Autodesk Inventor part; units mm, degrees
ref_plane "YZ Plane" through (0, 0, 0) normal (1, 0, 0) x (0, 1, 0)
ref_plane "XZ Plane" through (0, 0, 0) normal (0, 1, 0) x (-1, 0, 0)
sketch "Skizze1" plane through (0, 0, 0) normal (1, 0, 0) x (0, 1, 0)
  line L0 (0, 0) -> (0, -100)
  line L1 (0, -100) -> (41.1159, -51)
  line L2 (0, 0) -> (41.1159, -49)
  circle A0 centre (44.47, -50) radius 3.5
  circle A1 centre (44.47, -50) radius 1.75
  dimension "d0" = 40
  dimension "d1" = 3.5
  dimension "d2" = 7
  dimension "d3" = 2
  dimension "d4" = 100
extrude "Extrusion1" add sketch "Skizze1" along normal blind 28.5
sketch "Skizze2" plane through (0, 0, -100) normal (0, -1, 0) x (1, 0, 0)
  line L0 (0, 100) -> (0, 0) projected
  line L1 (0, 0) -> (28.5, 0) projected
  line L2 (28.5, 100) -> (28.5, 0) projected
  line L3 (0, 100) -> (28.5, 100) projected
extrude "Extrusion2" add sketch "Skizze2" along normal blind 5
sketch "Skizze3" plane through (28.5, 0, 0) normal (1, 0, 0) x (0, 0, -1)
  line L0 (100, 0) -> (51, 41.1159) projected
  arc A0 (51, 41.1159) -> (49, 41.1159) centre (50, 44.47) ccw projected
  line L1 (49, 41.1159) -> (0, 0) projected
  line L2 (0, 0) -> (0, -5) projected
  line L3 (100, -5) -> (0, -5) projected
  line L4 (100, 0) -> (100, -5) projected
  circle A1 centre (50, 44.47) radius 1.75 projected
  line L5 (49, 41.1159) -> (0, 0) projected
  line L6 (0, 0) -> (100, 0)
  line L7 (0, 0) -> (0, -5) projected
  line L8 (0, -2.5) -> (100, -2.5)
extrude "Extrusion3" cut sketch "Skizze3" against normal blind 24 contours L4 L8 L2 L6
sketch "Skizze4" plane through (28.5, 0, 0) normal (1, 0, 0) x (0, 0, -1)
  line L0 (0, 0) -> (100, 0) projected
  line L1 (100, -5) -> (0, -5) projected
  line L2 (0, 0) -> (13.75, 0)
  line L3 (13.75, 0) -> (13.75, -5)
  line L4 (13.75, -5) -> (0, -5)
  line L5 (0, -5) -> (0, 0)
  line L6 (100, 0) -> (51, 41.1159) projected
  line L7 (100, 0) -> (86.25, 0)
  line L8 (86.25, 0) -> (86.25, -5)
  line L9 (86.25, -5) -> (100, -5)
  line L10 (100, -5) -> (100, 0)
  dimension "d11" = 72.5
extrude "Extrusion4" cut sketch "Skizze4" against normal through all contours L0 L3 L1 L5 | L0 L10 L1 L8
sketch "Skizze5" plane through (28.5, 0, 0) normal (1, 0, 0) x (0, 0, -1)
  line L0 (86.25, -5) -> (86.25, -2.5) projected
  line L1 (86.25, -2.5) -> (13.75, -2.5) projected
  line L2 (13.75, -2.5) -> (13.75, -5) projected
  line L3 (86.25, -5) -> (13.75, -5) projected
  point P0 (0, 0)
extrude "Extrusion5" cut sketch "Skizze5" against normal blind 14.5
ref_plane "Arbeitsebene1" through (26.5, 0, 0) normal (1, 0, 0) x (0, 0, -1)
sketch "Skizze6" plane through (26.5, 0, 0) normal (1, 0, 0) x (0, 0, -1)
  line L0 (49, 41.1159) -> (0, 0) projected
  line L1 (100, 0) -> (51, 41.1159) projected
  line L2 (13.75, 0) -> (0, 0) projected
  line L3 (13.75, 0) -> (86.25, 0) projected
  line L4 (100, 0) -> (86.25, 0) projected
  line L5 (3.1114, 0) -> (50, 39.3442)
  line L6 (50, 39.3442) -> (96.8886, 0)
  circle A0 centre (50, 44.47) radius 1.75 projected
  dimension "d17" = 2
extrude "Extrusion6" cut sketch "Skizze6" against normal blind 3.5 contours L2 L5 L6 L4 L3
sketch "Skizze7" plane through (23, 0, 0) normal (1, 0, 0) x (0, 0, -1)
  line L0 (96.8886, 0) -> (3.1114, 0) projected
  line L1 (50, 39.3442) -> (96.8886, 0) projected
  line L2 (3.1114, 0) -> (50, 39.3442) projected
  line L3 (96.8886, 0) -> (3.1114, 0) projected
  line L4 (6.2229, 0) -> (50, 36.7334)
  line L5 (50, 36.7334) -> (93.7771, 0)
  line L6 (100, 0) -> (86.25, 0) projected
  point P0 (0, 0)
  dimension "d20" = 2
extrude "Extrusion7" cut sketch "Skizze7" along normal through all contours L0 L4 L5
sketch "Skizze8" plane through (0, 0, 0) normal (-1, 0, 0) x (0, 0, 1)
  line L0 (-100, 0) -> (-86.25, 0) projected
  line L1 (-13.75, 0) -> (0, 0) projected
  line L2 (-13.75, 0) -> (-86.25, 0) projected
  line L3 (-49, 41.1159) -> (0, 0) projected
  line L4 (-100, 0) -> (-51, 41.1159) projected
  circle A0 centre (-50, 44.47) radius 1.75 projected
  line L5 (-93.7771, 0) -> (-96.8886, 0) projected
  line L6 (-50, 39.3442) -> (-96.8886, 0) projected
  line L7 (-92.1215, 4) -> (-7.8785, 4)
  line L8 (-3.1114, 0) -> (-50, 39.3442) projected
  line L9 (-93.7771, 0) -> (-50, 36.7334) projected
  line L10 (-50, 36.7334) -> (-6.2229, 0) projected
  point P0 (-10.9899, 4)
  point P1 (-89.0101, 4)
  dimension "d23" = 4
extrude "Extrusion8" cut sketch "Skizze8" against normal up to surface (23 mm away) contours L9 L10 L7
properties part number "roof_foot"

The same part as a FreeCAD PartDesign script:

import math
import FreeCAD as App
import Part
import Sketcher
Q = App.Units.Quantity

doc = App.newDocument("Part")
body = doc.addObject("PartDesign::Body", "Body")

sketch1 = doc.addObject("Sketcher::SketchObject", "Sketch")
body.addObject(sketch1)
sketch1.AttachmentSupport = (doc.YZ_Plane, [""])
sketch1.MapMode = "FlatFace"
sketch1.addGeometry(Part.LineSegment(App.Vector(41.1, -49, 0), App.Vector(0, 0, 0)), False)
sketch1.addGeometry(Part.LineSegment(App.Vector(0, 0, 0), App.Vector(0, -100, 0)), False)
sketch1.addGeometry(Part.LineSegment(App.Vector(0, -100, 0), App.Vector(41.1, -51, 0)), False)
sketch1.addGeometry(Part.ArcOfCircle(Part.Circle(App.Vector(44.5, -50, 0), App.Vector(0, 0, 1), 3.5), math.radians(-163), math.radians(163)), False)
sketch1.addGeometry(Part.Circle(App.Vector(44.5, -50, 0), App.Vector(0, 0, 1), 1.8), False)
sketch1.addConstraint(Sketcher.Constraint("Coincident", 0, 2, 1, 1))
sketch1.addConstraint(Sketcher.Constraint("Coincident", 1, 2, 2, 1))
sketch1.addConstraint(Sketcher.Constraint("Coincident", 2, 2, 3, 1))
sketch1.addConstraint(Sketcher.Constraint("Coincident", 3, 2, 0, 1))
sketch1.addConstraint(Sketcher.Constraint("Vertical", 1))
sketch1.addConstraint(Sketcher.Constraint("Coincident", 0, 2, -1, 1))
sketch1.addConstraint(Sketcher.Constraint("Coincident", 4, 3, 3, 3))
sketch1.addConstraint(Sketcher.Constraint("Vertical", 2, 2, 3, 2))
sketch1.addConstraint(Sketcher.Constraint("Equal", 0, 2))
sketch1.addConstraint(Sketcher.Constraint("Diameter", 4, 3.5))
sketch1.addConstraint(Sketcher.Constraint("Radius", 3, 3.5))
sketch1.addConstraint(Sketcher.Constraint("DistanceY", 1, 2, 1, 1, 100.0))
sketch1.addConstraint(Sketcher.Constraint("DistanceY", 2, 2, 3, 2, 2.0))
sketch1.addConstraint(Sketcher.Constraint("Angle", 0, Q("130 deg")))
pad1 = doc.addObject("PartDesign::Pad", "Pad")
body.addObject(pad1)
pad1.Profile = sketch1
pad1.Length = 28.5

sketch2 = doc.addObject("Sketcher::SketchObject", "Sketch001")
body.addObject(sketch2)
sketch2.AttachmentSupport = (doc.XZ_Plane, [""])
sketch2.MapMode = "FlatFace"
sketch2.addGeometry(Part.LineSegment(App.Vector(28, 0, 0), App.Vector(0, 0, 0)), False)
sketch2.addGeometry(Part.LineSegment(App.Vector(0, 0, 0), App.Vector(0, -100, 0)), False)
sketch2.addGeometry(Part.LineSegment(App.Vector(0, -100, 0), App.Vector(28, -100, 0)), False)
sketch2.addGeometry(Part.LineSegment(App.Vector(28, -100, 0), App.Vector(28, 0, 0)), False)
sketch2.addConstraint(Sketcher.Constraint("Coincident", 0, 2, 1, 1))
sketch2.addConstraint(Sketcher.Constraint("Coincident", 1, 2, 2, 1))
sketch2.addConstraint(Sketcher.Constraint("Coincident", 2, 2, 3, 1))
sketch2.addConstraint(Sketcher.Constraint("Coincident", 3, 2, 0, 1))
sketch2.addConstraint(Sketcher.Constraint("Horizontal", 0))
sketch2.addConstraint(Sketcher.Constraint("Vertical", 1))
sketch2.addConstraint(Sketcher.Constraint("Horizontal", 2))
sketch2.addConstraint(Sketcher.Constraint("Vertical", 3))
sketch2.addConstraint(Sketcher.Constraint("Coincident", 0, 2, -1, 1))
sketch2.addConstraint(Sketcher.Constraint("DistanceY", 1, 2, 1, 1, 100.0))
sketch2.addConstraint(Sketcher.Constraint("DistanceX", 0, 2, 0, 1, 28.5))
pad2 = doc.addObject("PartDesign::Pad", "Pad001")
body.addObject(pad2)
pad2.Profile = sketch2
pad2.Length = 5

sketch3 = doc.addObject("Sketcher::SketchObject", "Sketch002")
body.addObject(sketch3)
sketch3.AttachmentSupport = (doc.YZ_Plane, [""])
sketch3.MapMode = "FlatFace"
sketch3.AttachmentOffset = App.Placement(App.Vector(0, 0, 28.5), App.Rotation())
sketch3.addGeometry(Part.LineSegment(App.Vector(-2.5, -100, 0), App.Vector(0, -100, 0)), False)
sketch3.addGeometry(Part.LineSegment(App.Vector(0, -100, 0), App.Vector(0, 0, 0)), False)
sketch3.addGeometry(Part.LineSegment(App.Vector(0, 0, 0), App.Vector(-2.5, 0, 0)), False)
sketch3.addGeometry(Part.LineSegment(App.Vector(-2.5, 0, 0), App.Vector(-2.5, -100, 0)), False)
sketch3.addConstraint(Sketcher.Constraint("Coincident", 0, 2, 1, 1))
sketch3.addConstraint(Sketcher.Constraint("Coincident", 1, 2, 2, 1))
sketch3.addConstraint(Sketcher.Constraint("Coincident", 2, 2, 3, 1))
sketch3.addConstraint(Sketcher.Constraint("Coincident", 3, 2, 0, 1))
sketch3.addConstraint(Sketcher.Constraint("Horizontal", 0))
sketch3.addConstraint(Sketcher.Constraint("Vertical", 1))
sketch3.addConstraint(Sketcher.Constraint("Horizontal", 2))
sketch3.addConstraint(Sketcher.Constraint("Vertical", 3))
sketch3.addConstraint(Sketcher.Constraint("Coincident", 1, 2, -1, 1))
sketch3.addConstraint(Sketcher.Constraint("DistanceY", 1, 1, 1, 2, 100.0))
sketch3.addConstraint(Sketcher.Constraint("DistanceX", 0, 1, 0, 2, 2.5))
pocket1 = doc.addObject("PartDesign::Pocket", "Pocket")
body.addObject(pocket1)
pocket1.Profile = sketch3
pocket1.Length = 24

sketch4 = doc.addObject("Sketcher::SketchObject", "Sketch003")
body.addObject(sketch4)
sketch4.AttachmentSupport = (doc.YZ_Plane, [""])
sketch4.MapMode = "FlatFace"
sketch4.AttachmentOffset = App.Placement(App.Vector(0, 0, 28.5), App.Rotation())
sketch4.addGeometry(Part.LineSegment(App.Vector(0, -14, 0), App.Vector(0, 0, 0)), False)
sketch4.addGeometry(Part.LineSegment(App.Vector(0, 0, 0), App.Vector(-5, 0, 0)), False)
sketch4.addGeometry(Part.LineSegment(App.Vector(-5, 0, 0), App.Vector(-5, -14, 0)), False)
sketch4.addGeometry(Part.LineSegment(App.Vector(-5, -14, 0), App.Vector(0, -14, 0)), False)
sketch4.addGeometry(Part.LineSegment(App.Vector(0, -100, 0), App.Vector(0, -86, 0)), False)
sketch4.addGeometry(Part.LineSegment(App.Vector(0, -86, 0), App.Vector(-5, -86, 0)), False)
sketch4.addGeometry(Part.LineSegment(App.Vector(-5, -86, 0), App.Vector(-5, -100, 0)), False)
sketch4.addGeometry(Part.LineSegment(App.Vector(-5, -100, 0), App.Vector(0, -100, 0)), False)
sketch4.addConstraint(Sketcher.Constraint("Coincident", 0, 2, 1, 1))
sketch4.addConstraint(Sketcher.Constraint("Coincident", 1, 2, 2, 1))
sketch4.addConstraint(Sketcher.Constraint("Coincident", 2, 2, 3, 1))
sketch4.addConstraint(Sketcher.Constraint("Coincident", 3, 2, 0, 1))
sketch4.addConstraint(Sketcher.Constraint("Coincident", 4, 2, 5, 1))
sketch4.addConstraint(Sketcher.Constraint("Coincident", 5, 2, 6, 1))
sketch4.addConstraint(Sketcher.Constraint("Coincident", 6, 2, 7, 1))
sketch4.addConstraint(Sketcher.Constraint("Coincident", 7, 2, 4, 1))
sketch4.addConstraint(Sketcher.Constraint("Vertical", 0))
sketch4.addConstraint(Sketcher.Constraint("Horizontal", 1))
sketch4.addConstraint(Sketcher.Constraint("Vertical", 2))
sketch4.addConstraint(Sketcher.Constraint("Horizontal", 3))
sketch4.addConstraint(Sketcher.Constraint("Vertical", 4))
sketch4.addConstraint(Sketcher.Constraint("Horizontal", 5))
sketch4.addConstraint(Sketcher.Constraint("Vertical", 6))
sketch4.addConstraint(Sketcher.Constraint("Horizontal", 7))
sketch4.addConstraint(Sketcher.Constraint("Coincident", 0, 2, -1, 1))
sketch4.addConstraint(Sketcher.Constraint("PointOnObject", 4, 2, -2))
sketch4.addConstraint(Sketcher.Constraint("Vertical", 2, 2, 5, 2))
sketch4.addConstraint(Sketcher.Constraint("Equal", 2, 4))
sketch4.addConstraint(Sketcher.Constraint("DistanceY", 4, 2, 3, 2, 72.5))
sketch4.addConstraint(Sketcher.Constraint("DistanceX", 1, 2, 1, 1, 5.0))
sketch4.addConstraint(Sketcher.Constraint("DistanceY", 6, 2, -1, 1, 100.0))
pocket2 = doc.addObject("PartDesign::Pocket", "Pocket001")
body.addObject(pocket2)
pocket2.Profile = sketch4
pocket2.Type = "ThroughAll"

sketch5 = doc.addObject("Sketcher::SketchObject", "Sketch004")
body.addObject(sketch5)
sketch5.AttachmentSupport = (doc.YZ_Plane, [""])
sketch5.MapMode = "FlatFace"
sketch5.AttachmentOffset = App.Placement(App.Vector(0, 0, 28.5), App.Rotation())
sketch5.addGeometry(Part.LineSegment(App.Vector(-5, -13.8, 0), App.Vector(-5, -86.2, 0)), False)
sketch5.addGeometry(Part.LineSegment(App.Vector(-5, -86.2, 0), App.Vector(-2.5, -86.2, 0)), False)
sketch5.addGeometry(Part.LineSegment(App.Vector(-2.5, -86.2, 0), App.Vector(-2.5, -13.8, 0)), False)
sketch5.addGeometry(Part.LineSegment(App.Vector(-2.5, -13.8, 0), App.Vector(-5, -13.8, 0)), False)
sketch5.addConstraint(Sketcher.Constraint("Coincident", 0, 2, 1, 1))
sketch5.addConstraint(Sketcher.Constraint("Coincident", 1, 2, 2, 1))
sketch5.addConstraint(Sketcher.Constraint("Coincident", 2, 2, 3, 1))
sketch5.addConstraint(Sketcher.Constraint("Coincident", 3, 2, 0, 1))
sketch5.addConstraint(Sketcher.Constraint("Vertical", 0))
sketch5.addConstraint(Sketcher.Constraint("Horizontal", 1))
sketch5.addConstraint(Sketcher.Constraint("Vertical", 2))
sketch5.addConstraint(Sketcher.Constraint("Horizontal", 3))
sketch5.addConstraint(Sketcher.Constraint("DistanceX", 1, 1, 1, 2, 2.5))
sketch5.addConstraint(Sketcher.Constraint("DistanceY", 0, 2, 0, 1, 72.5))
sketch5.addConstraint(Sketcher.Constraint("DistanceX", 0, 2, -1, 1, 5.0))
sketch5.addConstraint(Sketcher.Constraint("DistanceY", 0, 2, -1, 1, 86.25))
pocket3 = doc.addObject("PartDesign::Pocket", "Pocket002")
body.addObject(pocket3)
pocket3.Profile = sketch5
pocket3.Length = 14.5

sketch6 = doc.addObject("Sketcher::SketchObject", "Sketch005")
body.addObject(sketch6)
sketch6.AttachmentSupport = (doc.YZ_Plane, [""])
sketch6.MapMode = "FlatFace"
sketch6.AttachmentOffset = App.Placement(App.Vector(0, 0, 26.5), App.Rotation())
sketch6.addGeometry(Part.LineSegment(App.Vector(0, -3, 0), App.Vector(0, -97, 0)), False)
sketch6.addGeometry(Part.LineSegment(App.Vector(0, -97, 0), App.Vector(39, -50, 0)), False)
sketch6.addGeometry(Part.LineSegment(App.Vector(39, -50, 0), App.Vector(0, -3, 0)), False)
sketch6.addConstraint(Sketcher.Constraint("Coincident", 0, 2, 1, 1))
sketch6.addConstraint(Sketcher.Constraint("Coincident", 1, 2, 2, 1))
sketch6.addConstraint(Sketcher.Constraint("Coincident", 2, 2, 0, 1))
sketch6.addConstraint(Sketcher.Constraint("Vertical", 0))
sketch6.addConstraint(Sketcher.Constraint("PointOnObject", 0, 2, -2))
sketch6.addConstraint(Sketcher.Constraint("Equal", 1, 2))
sketch6.addConstraint(Sketcher.Constraint("Angle", 1, Q("50 deg")))
sketch6.addConstraint(Sketcher.Constraint("DistanceY", 1, 2, -1, 1, 50.0))
sketch6.addConstraint(Sketcher.Constraint("DistanceY", 0, 2, 0, 1, 93.7772))
pocket4 = doc.addObject("PartDesign::Pocket", "Pocket003")
body.addObject(pocket4)
pocket4.Profile = sketch6
pocket4.Length = 3.5

sketch7 = doc.addObject("Sketcher::SketchObject", "Sketch006")
body.addObject(sketch7)
sketch7.AttachmentSupport = (doc.YZ_Plane, [""])
sketch7.MapMode = "FlatFace"
sketch7.AttachmentOffset = App.Placement(App.Vector(0, 0, 23), App.Rotation())
sketch7.addGeometry(Part.LineSegment(App.Vector(0, -6, 0), App.Vector(0, -94, 0)), False)
sketch7.addGeometry(Part.LineSegment(App.Vector(0, -94, 0), App.Vector(37, -50, 0)), False)
sketch7.addGeometry(Part.LineSegment(App.Vector(37, -50, 0), App.Vector(0, -6, 0)), False)
sketch7.addConstraint(Sketcher.Constraint("Coincident", 0, 2, 1, 1))
sketch7.addConstraint(Sketcher.Constraint("Coincident", 1, 2, 2, 1))
sketch7.addConstraint(Sketcher.Constraint("Coincident", 2, 2, 0, 1))
sketch7.addConstraint(Sketcher.Constraint("Vertical", 0))
sketch7.addConstraint(Sketcher.Constraint("PointOnObject", 0, 2, -2))
sketch7.addConstraint(Sketcher.Constraint("Equal", 1, 2))
sketch7.addConstraint(Sketcher.Constraint("Angle", 1, Q("50 deg")))
sketch7.addConstraint(Sketcher.Constraint("DistanceY", 1, 2, -1, 1, 50.0))
sketch7.addConstraint(Sketcher.Constraint("Distance", 1, 57.147))
pocket5 = doc.addObject("PartDesign::Pocket", "Pocket004")
body.addObject(pocket5)
pocket5.Profile = sketch7
pocket5.Type = "ThroughAll"
pocket5.Reversed = True

sketch8 = doc.addObject("Sketcher::SketchObject", "Sketch007")
body.addObject(sketch8)
sketch8.AttachmentSupport = (doc.YZ_Plane, [""])
sketch8.MapMode = "FlatFace"
sketch8.addGeometry(Part.LineSegment(App.Vector(37, -50, 0), App.Vector(4, -89, 0)), False)
sketch8.addGeometry(Part.LineSegment(App.Vector(4, -89, 0), App.Vector(4, -11, 0)), False)
sketch8.addGeometry(Part.LineSegment(App.Vector(4, -11, 0), App.Vector(37, -50, 0)), False)
sketch8.addConstraint(Sketcher.Constraint("Coincident", 0, 2, 1, 1))
sketch8.addConstraint(Sketcher.Constraint("Coincident", 1, 2, 2, 1))
sketch8.addConstraint(Sketcher.Constraint("Coincident", 2, 2, 0, 1))
sketch8.addConstraint(Sketcher.Constraint("Vertical", 1))
sketch8.addConstraint(Sketcher.Constraint("Equal", 0, 2))
sketch8.addConstraint(Sketcher.Constraint("DistanceX", -1, 1, 0, 2, 4.0))
sketch8.addConstraint(Sketcher.Constraint("Angle", 0, Q("-130 deg")))
sketch8.addConstraint(Sketcher.Constraint("DistanceY", 2, 2, -1, 1, 50.0))
sketch8.addConstraint(Sketcher.Constraint("DistanceY", 0, 2, -1, 1, 89.01))
pocket6 = doc.addObject("PartDesign::Pocket", "Pocket005")
body.addObject(pocket6)
pocket6.Profile = sketch8
pocket6.Length = 23
pocket6.Reversed = True

doc.recompute()
